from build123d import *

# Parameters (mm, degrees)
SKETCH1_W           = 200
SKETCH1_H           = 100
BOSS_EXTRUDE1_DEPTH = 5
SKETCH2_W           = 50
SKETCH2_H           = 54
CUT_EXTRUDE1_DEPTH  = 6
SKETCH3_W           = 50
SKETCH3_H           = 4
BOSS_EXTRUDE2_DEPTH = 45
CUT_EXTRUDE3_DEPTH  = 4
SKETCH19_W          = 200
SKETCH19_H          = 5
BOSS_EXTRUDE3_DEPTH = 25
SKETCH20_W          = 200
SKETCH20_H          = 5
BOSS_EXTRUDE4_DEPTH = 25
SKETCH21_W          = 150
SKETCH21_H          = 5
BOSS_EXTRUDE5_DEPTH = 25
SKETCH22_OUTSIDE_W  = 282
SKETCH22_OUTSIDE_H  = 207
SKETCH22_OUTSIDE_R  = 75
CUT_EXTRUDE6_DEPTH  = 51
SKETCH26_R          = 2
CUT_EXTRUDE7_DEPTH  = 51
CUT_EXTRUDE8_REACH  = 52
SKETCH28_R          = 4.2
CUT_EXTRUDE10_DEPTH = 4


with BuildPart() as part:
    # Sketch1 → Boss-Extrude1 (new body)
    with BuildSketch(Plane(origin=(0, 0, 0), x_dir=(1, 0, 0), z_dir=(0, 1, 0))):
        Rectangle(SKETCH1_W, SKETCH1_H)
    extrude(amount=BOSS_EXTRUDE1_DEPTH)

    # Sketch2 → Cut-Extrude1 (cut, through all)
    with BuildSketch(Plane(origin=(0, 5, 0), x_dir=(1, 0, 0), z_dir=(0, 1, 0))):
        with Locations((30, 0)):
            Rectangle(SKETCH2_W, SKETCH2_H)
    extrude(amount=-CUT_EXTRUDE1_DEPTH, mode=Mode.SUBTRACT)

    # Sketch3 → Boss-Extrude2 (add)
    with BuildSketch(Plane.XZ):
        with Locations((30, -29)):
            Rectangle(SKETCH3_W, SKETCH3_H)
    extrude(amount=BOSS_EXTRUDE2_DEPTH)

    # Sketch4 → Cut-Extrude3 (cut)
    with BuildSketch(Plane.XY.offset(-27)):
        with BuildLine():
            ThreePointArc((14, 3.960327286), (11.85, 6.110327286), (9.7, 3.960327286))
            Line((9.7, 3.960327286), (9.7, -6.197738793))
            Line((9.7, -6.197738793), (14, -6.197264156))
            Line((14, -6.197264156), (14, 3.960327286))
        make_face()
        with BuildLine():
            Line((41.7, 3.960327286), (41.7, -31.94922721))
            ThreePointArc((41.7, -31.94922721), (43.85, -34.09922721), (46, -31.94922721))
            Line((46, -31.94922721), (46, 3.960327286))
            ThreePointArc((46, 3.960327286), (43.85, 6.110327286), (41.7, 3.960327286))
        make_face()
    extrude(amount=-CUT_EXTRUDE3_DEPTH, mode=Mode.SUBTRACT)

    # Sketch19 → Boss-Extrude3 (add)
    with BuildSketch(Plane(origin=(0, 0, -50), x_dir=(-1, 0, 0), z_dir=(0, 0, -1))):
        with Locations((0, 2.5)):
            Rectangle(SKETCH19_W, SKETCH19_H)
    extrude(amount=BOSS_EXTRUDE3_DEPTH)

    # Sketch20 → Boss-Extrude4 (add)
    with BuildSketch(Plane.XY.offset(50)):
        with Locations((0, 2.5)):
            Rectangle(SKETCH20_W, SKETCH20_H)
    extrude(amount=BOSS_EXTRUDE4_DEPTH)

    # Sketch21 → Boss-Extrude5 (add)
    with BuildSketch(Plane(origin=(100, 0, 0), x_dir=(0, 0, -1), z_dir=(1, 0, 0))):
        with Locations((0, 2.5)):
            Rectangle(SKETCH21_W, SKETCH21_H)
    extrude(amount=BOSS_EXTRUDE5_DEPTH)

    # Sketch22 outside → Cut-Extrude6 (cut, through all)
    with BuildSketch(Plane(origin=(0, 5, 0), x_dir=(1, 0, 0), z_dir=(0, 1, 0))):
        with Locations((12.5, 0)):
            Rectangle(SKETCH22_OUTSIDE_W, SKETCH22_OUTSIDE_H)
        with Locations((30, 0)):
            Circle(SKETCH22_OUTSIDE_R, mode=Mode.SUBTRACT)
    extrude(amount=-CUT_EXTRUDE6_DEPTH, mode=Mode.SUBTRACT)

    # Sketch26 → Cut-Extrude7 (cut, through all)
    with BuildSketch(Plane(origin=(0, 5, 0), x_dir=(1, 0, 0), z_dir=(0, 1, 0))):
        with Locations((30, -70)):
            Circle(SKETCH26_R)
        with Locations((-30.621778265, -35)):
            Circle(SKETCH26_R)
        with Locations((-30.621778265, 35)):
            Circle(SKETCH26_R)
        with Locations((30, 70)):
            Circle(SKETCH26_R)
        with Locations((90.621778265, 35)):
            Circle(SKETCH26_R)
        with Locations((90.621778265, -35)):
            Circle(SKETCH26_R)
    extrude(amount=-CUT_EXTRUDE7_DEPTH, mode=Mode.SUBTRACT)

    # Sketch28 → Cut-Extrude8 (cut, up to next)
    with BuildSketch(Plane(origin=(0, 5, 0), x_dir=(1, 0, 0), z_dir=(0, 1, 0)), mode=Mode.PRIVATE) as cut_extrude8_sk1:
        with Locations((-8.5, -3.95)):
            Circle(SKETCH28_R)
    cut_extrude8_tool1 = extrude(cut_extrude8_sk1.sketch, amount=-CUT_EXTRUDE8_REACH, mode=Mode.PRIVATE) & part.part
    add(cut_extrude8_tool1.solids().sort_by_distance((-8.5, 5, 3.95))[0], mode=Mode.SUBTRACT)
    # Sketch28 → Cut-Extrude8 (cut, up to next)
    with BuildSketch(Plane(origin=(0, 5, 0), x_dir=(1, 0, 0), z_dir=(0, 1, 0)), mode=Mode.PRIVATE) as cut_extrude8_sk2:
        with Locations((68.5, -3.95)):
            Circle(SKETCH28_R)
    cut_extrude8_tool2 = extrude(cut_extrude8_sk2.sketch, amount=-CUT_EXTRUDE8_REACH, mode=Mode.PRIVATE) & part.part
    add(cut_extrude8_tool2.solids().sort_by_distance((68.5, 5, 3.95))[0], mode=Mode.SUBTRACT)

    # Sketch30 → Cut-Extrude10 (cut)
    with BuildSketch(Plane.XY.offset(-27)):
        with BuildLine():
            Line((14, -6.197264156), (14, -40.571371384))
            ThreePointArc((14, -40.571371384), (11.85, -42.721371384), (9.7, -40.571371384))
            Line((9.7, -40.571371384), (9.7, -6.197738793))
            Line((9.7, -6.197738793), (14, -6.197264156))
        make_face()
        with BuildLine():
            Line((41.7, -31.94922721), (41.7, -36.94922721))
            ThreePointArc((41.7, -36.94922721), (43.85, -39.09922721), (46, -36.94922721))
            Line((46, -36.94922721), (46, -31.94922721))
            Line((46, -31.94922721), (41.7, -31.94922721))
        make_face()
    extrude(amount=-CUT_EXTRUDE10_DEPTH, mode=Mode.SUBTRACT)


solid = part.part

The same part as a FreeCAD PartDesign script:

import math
import FreeCAD as App
import Part
import Sketcher
Q = App.Units.Quantity

doc = App.newDocument("Part")
body = doc.addObject("PartDesign::Body", "Body")

sketch1 = doc.addObject("Sketcher::SketchObject", "Sketch")
body.addObject(sketch1)
sketch1.AttachmentSupport = (doc.XZ_Plane, [""])
sketch1.MapMode = "FlatFace"
sketch1.addGeometry(Part.LineSegment(App.Vector(-100, -50, 0), App.Vector(-100, 50, 0)), False)
sketch1.addGeometry(Part.LineSegment(App.Vector(-100, 50, 0), App.Vector(100, 50, 0)), False)
sketch1.addGeometry(Part.LineSegment(App.Vector(100, 50, 0), App.Vector(100, -50, 0)), False)
sketch1.addGeometry(Part.LineSegment(App.Vector(100, -50, 0), App.Vector(-100, -50, 0)), False)
sketch1.addConstraint(Sketcher.Constraint("Coincident", 0, 2, 1, 1))
sketch1.addConstraint(Sketcher.Constraint("Coincident", 1, 2, 2, 1))
sketch1.addConstraint(Sketcher.Constraint("Coincident", 2, 2, 3, 1))
sketch1.addConstraint(Sketcher.Constraint("Coincident", 3, 2, 0, 1))
sketch1.addConstraint(Sketcher.Constraint("Vertical", 0))
sketch1.addConstraint(Sketcher.Constraint("Horizontal", 1))
sketch1.addConstraint(Sketcher.Constraint("Vertical", 2))
sketch1.addConstraint(Sketcher.Constraint("Horizontal", 3))
sketch1.addConstraint(Sketcher.Constraint("Symmetric", 0, 2, 2, 2, -1, 1))
sketch1.addConstraint(Sketcher.Constraint("DistanceX", 1, 1, 1, 2, Q("200 mm")))
sketch1.addConstraint(Sketcher.Constraint("DistanceY", 0, 1, 0, 2, Q("100 mm")))
pad1 = doc.addObject("PartDesign::Pad", "Pad")
body.addObject(pad1)
pad1.Profile = sketch1
pad1.Length = 5
pad1.Reversed = True

sketch2 = doc.addObject("Sketcher::SketchObject", "Sketch001")
body.addObject(sketch2)
sketch2.AttachmentSupport = (doc.XZ_Plane, [""])
sketch2.MapMode = "FlatFace"
sketch2.AttachmentOffset = App.Placement(App.Vector(0, 0, -5), App.Rotation())
sketch2.addGeometry(Part.LineSegment(App.Vector(5, -27, 0), App.Vector(5, 27, 0)), False)
sketch2.addGeometry(Part.LineSegment(App.Vector(5, 27, 0), App.Vector(55, 27, 0)), False)
sketch2.addGeometry(Part.LineSegment(App.Vector(55, 27, 0), App.Vector(55, -27, 0)), False)
sketch2.addGeometry(Part.LineSegment(App.Vector(55, -27, 0), App.Vector(5, -27, 0)), False)
sketch2.addConstraint(Sketcher.Constraint("Coincident", 0, 2, 1, 1))
sketch2.addConstraint(Sketcher.Constraint("Coincident", 1, 2, 2, 1))
sketch2.addConstraint(Sketcher.Constraint("Coincident", 2, 2, 3, 1))
sketch2.addConstraint(Sketcher.Constraint("Coincident", 3, 2, 0, 1))
sketch2.addConstraint(Sketcher.Constraint("Vertical", 0))
sketch2.addConstraint(Sketcher.Constraint("Horizontal", 1))
sketch2.addConstraint(Sketcher.Constraint("Vertical", 2))
sketch2.addConstraint(Sketcher.Constraint("Horizontal", 3))
sketch2.addConstraint(Sketcher.Constraint("DistanceX", 1, 1, 1, 2, Q("50 mm")))
sketch2.addConstraint(Sketcher.Constraint("DistanceY", 0, 1, 0, 2, Q("54 mm")))
sketch2.addConstraint(Sketcher.Constraint("DistanceX", -1, 1, 0, 2, Q("5 mm")))
sketch2.addConstraint(Sketcher.Constraint("DistanceY", -1, 1, 0, 2, Q("27 mm")))
pocket1 = doc.addObject("PartDesign::Pocket", "Pocket")
body.addObject(pocket1)
pocket1.Profile = sketch2
pocket1.Type = "ThroughAll"
pocket1.Reversed = True

sketch3 = doc.addObject("Sketcher::SketchObject", "Sketch002")
body.addObject(sketch3)
sketch3.AttachmentSupport = (doc.XZ_Plane, [""])
sketch3.MapMode = "FlatFace"
sketch3.addGeometry(Part.LineSegment(App.Vector(5, -27, 0), App.Vector(5, -31, 0)), False)
sketch3.addGeometry(Part.LineSegment(App.Vector(5, -31, 0), App.Vector(55, -31, 0)), False)
sketch3.addGeometry(Part.LineSegment(App.Vector(55, -31, 0), App.Vector(55, -27, 0)), False)
sketch3.addGeometry(Part.LineSegment(App.Vector(55, -27, 0), App.Vector(5, -27, 0)), False)
sketch3.addConstraint(Sketcher.Constraint("Coincident", 0, 2, 1, 1))
sketch3.addConstraint(Sketcher.Constraint("Coincident", 1, 2, 2, 1))
sketch3.addConstraint(Sketcher.Constraint("Coincident", 2, 2, 3, 1))
sketch3.addConstraint(Sketcher.Constraint("Coincident", 3, 2, 0, 1))
sketch3.addConstraint(Sketcher.Constraint("Vertical", 0))
sketch3.addConstraint(Sketcher.Constraint("Horizontal", 1))
sketch3.addConstraint(Sketcher.Constraint("Vertical", 2))
sketch3.addConstraint(Sketcher.Constraint("Horizontal", 3))
sketch3.addConstraint(Sketcher.Constraint("DistanceX", 1, 1, 1, 2, Q("50 mm")))
sketch3.addConstraint(Sketcher.Constraint("DistanceY", 0, 2, 0, 1, Q("4 mm")))
sketch3.addConstraint(Sketcher.Constraint("DistanceX", -1, 1, 0, 2, Q("5 mm")))
sketch3.addConstraint(Sketcher.Constraint("DistanceY", 0, 2, -1, 1, Q("31 mm")))
pad2 = doc.addObject("PartDesign::Pad", "Pad001")
body.addObject(pad2)
pad2.Profile = sketch3
pad2.Length = 45

sketch4 = doc.addObject("Sketcher::SketchObject", "Sketch003")
body.addObject(sketch4)
sketch4.AttachmentSupport = (doc.XY_Plane, [""])
sketch4.MapMode = "FlatFace"
sketch4.AttachmentOffset = App.Placement(App.Vector(0, 0, -27), App.Rotation())
sketch4.addGeometry(Part.ArcOfCircle(Part.Circle(App.Vector(11.85, 3.960327, 0), App.Vector(0, 0, 1), 2.15), math.radians(0), math.radians(180)), False)
sketch4.addGeometry(Part.LineSegment(App.Vector(9.7, 3.960327, 0), App.Vector(9.7, -6.197739, 0)), False)
sketch4.addGeometry(Part.LineSegment(App.Vector(9.7, -6.197739, 0), App.Vector(14, -6.197264, 0)), False)
sketch4.addGeometry(Part.LineSegment(App.Vector(14, -6.197264, 0), App.Vector(14, 3.960327, 0)), False)
sketch4.addGeometry(Part.LineSegment(App.Vector(41.7, 3.960327, 0), App.Vector(41.7, -31.949227, 0)), False)
sketch4.addGeometry(Part.ArcOfCircle(Part.Circle(App.Vector(43.85, -31.949227, 0), App.Vector(0, 0, 1), 2.15), math.radians(180), math.radians(360)), False)
sketch4.addGeometry(Part.LineSegment(App.Vector(46, -31.949227, 0), App.Vector(46, 3.960327, 0)), False)
sketch4.addGeometry(Part.ArcOfCircle(Part.Circle(App.Vector(43.85, 3.960327, 0), App.Vector(0, 0, 1), 2.15), math.radians(0), math.radians(180)), False)
sketch4.addConstraint(Sketcher.Constraint("Tangent", 0, 2, 1, 1))
sketch4.addConstraint(Sketcher.Constraint("Coincident", 1, 2, 2, 1))
sketch4.addConstraint(Sketcher.Constraint("Coincident", 2, 2, 3, 1))
sketch4.addConstraint(Sketcher.Constraint("Tangent", 3, 2, 0, 1))
sketch4.addConstraint(Sketcher.Constraint("Tangent", 4, 2, 5, 1))
sketch4.addConstraint(Sketcher.Constraint("Tangent", 5, 2, 6, 1))
sketch4.addConstraint(Sketcher.Constraint("Tangent", 6, 2, 7, 1))
sketch4.addConstraint(Sketcher.Constraint("Tangent", 7, 2, 4, 1))
sketch4.addConstraint(Sketcher.Constraint("Vertical", 1))
sketch4.addConstraint(Sketcher.Constraint("Vertical", 3))
sketch4.addConstraint(Sketcher.Constraint("Vertical", 4))
sketch4.addConstraint(Sketcher.Constraint("Vertical", 6))
sketch4.addConstraint(Sketcher.Constraint("Equal", 0, 5))
sketch4.addConstraint(Sketcher.Constraint("Horizontal", 0, 3, 7, 3))
sketch4.addConstraint(Sketcher.Constraint("Radius", 0, Q("2.15 mm")))
sketch4.addConstraint(Sketcher.Constraint("DistanceX", -1, 1, 2, 2, Q("14 mm")))
sketch4.addConstraint(Sketcher.Constraint("DistanceX", -1, 1, 5, 2, Q("46 mm")))
sketch4.addConstraint(Sketcher.Constraint("DistanceY", 3, 1, 3, 2, Q("10.157591 mm")))
sketch4.addConstraint(Sketcher.Constraint("DistanceY", 1, 2, 1, 1, Q("10.158066 mm")))
sketch4.addConstraint(Sketcher.Constraint("DistanceY", 4, 2, 4, 1, Q("35.909554 mm")))
sketch4.addConstraint(Sketcher.Constraint("DistanceY", 1, 2, -1, 1, Q("6.197739 mm")))
pocket2 = doc.addObject("PartDesign::Pocket", "Pocket001")
body.addObject(pocket2)
pocket2.Profile = sketch4
pocket2.Length = 4

sketch5 = doc.addObject("Sketcher::SketchObject", "Sketch004")
body.addObject(sketch5)
sketch5.AttachmentSupport = (doc.XY_Plane, [""])
sketch5.MapMode = "FlatFace"
sketch5.AttachmentOffset = App.Placement(App.Vector(0, 0, -50), App.Rotation())
sketch5.addGeometry(Part.LineSegment(App.Vector(100, 5, 0), App.Vector(100, 0, 0)), False)
sketch5.addGeometry(Part.LineSegment(App.Vector(100, 0, 0), App.Vector(-100, 0, 0)), False)
sketch5.addGeometry(Part.LineSegment(App.Vector(-100, 0, 0), App.Vector(-100, 5, 0)), False)
sketch5.addGeometry(Part.LineSegment(App.Vector(-100, 5, 0), App.Vector(100, 5, 0)), False)
sketch5.addConstraint(Sketcher.Constraint("Coincident", 0, 2, 1, 1))
sketch5.addConstraint(Sketcher.Constraint("Coincident", 1, 2, 2, 1))
sketch5.addConstraint(Sketcher.Constraint("Coincident", 2, 2, 3, 1))
sketch5.addConstraint(Sketcher.Constraint("Coincident", 3, 2, 0, 1))
sketch5.addConstraint(Sketcher.Constraint("Vertical", 0))
sketch5.addConstraint(Sketcher.Constraint("Horizontal", 1))
sketch5.addConstraint(Sketcher.Constraint("Vertical", 2))
sketch5.addConstraint(Sketcher.Constraint("Horizontal", 3))
sketch5.addConstraint(Sketcher.Constraint("Symmetric", 0, 2, 1, 2, -1, 1))
sketch5.addConstraint(Sketcher.Constraint("DistanceX", 1, 2, 1, 1, Q("200 mm")))
sketch5.addConstraint(Sketcher.Constraint("DistanceY", 0, 2, 0, 1, Q("5 mm")))
pad3 = doc.addObject("PartDesign::Pad", "Pad002")
body.addObject(pad3)
pad3.Profile = sketch5
pad3.Length = 25
pad3.Reversed = True

sketch6 = doc.addObject("Sketcher::SketchObject", "Sketch005")
body.addObject(sketch6)
sketch6.AttachmentSupport = (doc.XY_Plane, [""])
sketch6.MapMode = "FlatFace"
sketch6.AttachmentOffset = App.Placement(App.Vector(0, 0, 50), App.Rotation())
sketch6.addGeometry(Part.LineSegment(App.Vector(-100, 5, 0), App.Vector(-100, 0, 0)), False)
sketch6.addGeometry(Part.LineSegment(App.Vector(-100, 0, 0), App.Vector(100, 0, 0)), False)
sketch6.addGeometry(Part.LineSegment(App.Vector(100, 0, 0), App.Vector(100, 5, 0)), False)
sketch6.addGeometry(Part.LineSegment(App.Vector(100, 5, 0), App.Vector(-100, 5, 0)), False)
sketch6.addConstraint(Sketcher.Constraint("Coincident", 0, 2, 1, 1))
sketch6.addConstraint(Sketcher.Constraint("Coincident", 1, 2, 2, 1))
sketch6.addConstraint(Sketcher.Constraint("Coincident", 2, 2, 3, 1))
sketch6.addConstraint(Sketcher.Constraint("Coincident", 3, 2, 0, 1))
sketch6.addConstraint(Sketcher.Constraint("Vertical", 0))
sketch6.addConstraint(Sketcher.Constraint("Horizontal", 1))
sketch6.addConstraint(Sketcher.Constraint("Vertical", 2))
sketch6.addConstraint(Sketcher.Constraint("Horizontal", 3))
sketch6.addConstraint(Sketcher.Constraint("Symmetric", 0, 2, 1, 2, -1, 1))
sketch6.addConstraint(Sketcher.Constraint("DistanceX", 1, 1, 1, 2, Q("200 mm")))
sketch6.addConstraint(Sketcher.Constraint("DistanceY", 0, 2, 0, 1, Q("5 mm")))
pad4 = doc.addObject("PartDesign::Pad", "Pad003")
body.addObject(pad4)
pad4.Profile = sketch6
pad4.Length = 25

sketch7 = doc.addObject("Sketcher::SketchObject", "Sketch006")
body.addObject(sketch7)
sketch7.AttachmentSupport = (doc.YZ_Plane, [""])
sketch7.MapMode = "FlatFace"
sketch7.AttachmentOffset = App.Placement(App.Vector(0, 0, 100), App.Rotation())
sketch7.addGeometry(Part.LineSegment(App.Vector(5, 75, 0), App.Vector(0, 75, 0)), False)
sketch7.addGeometry(Part.LineSegment(App.Vector(0, 75, 0), App.Vector(0, -75, 0)), False)
sketch7.addGeometry(Part.LineSegment(App.Vector(0, -75, 0), App.Vector(5, -75, 0)), False)
sketch7.addGeometry(Part.LineSegment(App.Vector(5, -75, 0), App.Vector(5, 75, 0)), False)
sketch7.addConstraint(Sketcher.Constraint("Coincident", 0, 2, 1, 1))
sketch7.addConstraint(Sketcher.Constraint("Coincident", 1, 2, 2, 1))
sketch7.addConstraint(Sketcher.Constraint("Coincident", 2, 2, 3, 1))
sketch7.addConstraint(Sketcher.Constraint("Coincident", 3, 2, 0, 1))
sketch7.addConstraint(Sketcher.Constraint("Horizontal", 0))
sketch7.addConstraint(Sketcher.Constraint("Vertical", 1))
sketch7.addConstraint(Sketcher.Constraint("Horizontal", 2))
sketch7.addConstraint(Sketcher.Constraint("Vertical", 3))
sketch7.addConstraint(Sketcher.Constraint("Symmetric", 0, 2, 1, 2, -1, 1))
sketch7.addConstraint(Sketcher.Constraint("DistanceX", 0, 2, 0, 1, Q("5 mm")))
sketch7.addConstraint(Sketcher.Constraint("DistanceY", 1, 2, 1, 1, Q("150 mm")))
pad5 = doc.addObject("PartDesign::Pad", "Pad004")
body.addObject(pad5)
pad5.Profile = sketch7
pad5.Length = 25

sketch8 = doc.addObject("Sketcher::SketchObject", "Sketch007")
body.addObject(sketch8)
sketch8.AttachmentSupport = (doc.XZ_Plane, [""])
sketch8.MapMode = "FlatFace"
sketch8.AttachmentOffset = App.Placement(App.Vector(0, 0, -5), App.Rotation())
sketch8.addGeometry(Part.LineSegment(App.Vector(-128.5, -103.5, 0), App.Vector(-128.5, 103.5, 0)), False)
sketch8.addGeometry(Part.LineSegment(App.Vector(-128.5, 103.5, 0), App.Vector(153.5, 103.5, 0)), False)
sketch8.addGeometry(Part.LineSegment(App.Vector(153.5, 103.5, 0), App.Vector(153.5, -103.5, 0)), False)
sketch8.addGeometry(Part.LineSegment(App.Vector(153.5, -103.5, 0), App.Vector(-128.5, -103.5, 0)), False)
sketch8.addGeometry(Part.Circle(App.Vector(30, 0, 0), App.Vector(0, 0, 1), 75), False)
sketch8.addConstraint(Sketcher.Constraint("Coincident", 0, 2, 1, 1))
sketch8.addConstraint(Sketcher.Constraint("Coincident", 1, 2, 2, 1))
sketch8.addConstraint(Sketcher.Constraint("Coincident", 2, 2, 3, 1))
sketch8.addConstraint(Sketcher.Constraint("Coincident", 3, 2, 0, 1))
sketch8.addConstraint(Sketcher.Constraint("Vertical", 0))
sketch8.addConstraint(Sketcher.Constraint("Horizontal", 1))
sketch8.addConstraint(Sketcher.Constraint("Vertical", 2))
sketch8.addConstraint(Sketcher.Constraint("Horizontal", 3))
sketch8.addConstraint(Sketcher.Constraint("PointOnObject", 4, 3, -1))
sketch8.addConstraint(Sketcher.Constraint("Diameter", 4, Q("150 mm")))
sketch8.addConstraint(Sketcher.Constraint("DistanceX", 1, 1, 1, 2, Q("282 mm")))
sketch8.addConstraint(Sketcher.Constraint("DistanceY", 0, 1, 0, 2, Q("207 mm")))
sketch8.addConstraint(Sketcher.Constraint("DistanceX", -1, 1, 4, 3, Q("30 mm")))
sketch8.addConstraint(Sketcher.Constraint("DistanceX", 0, 2, -1, 1, Q("128.5 mm")))
sketch8.addConstraint(Sketcher.Constraint("DistanceY", -1, 1, 0, 2, Q("103.5 mm")))
pocket3 = doc.addObject("PartDesign::Pocket", "Pocket002")
body.addObject(pocket3)
pocket3.Profile = sketch8
pocket3.Type = "ThroughAll"
pocket3.Reversed = True

sketch9 = doc.addObject("Sketcher::SketchObject", "Sketch008")
body.addObject(sketch9)
sketch9.AttachmentSupport = (doc.XZ_Plane, [""])
sketch9.MapMode = "FlatFace"
sketch9.AttachmentOffset = App.Placement(App.Vector(0, 0, -5), App.Rotation())
sketch9.addGeometry(Part.Circle(App.Vector(30, 70, 0), App.Vector(0, 0, 1), 2), False)
sketch9.addGeometry(Part.Circle(App.Vector(-30.621778, 35, 0), App.Vector(0, 0, 1), 2), False)
sketch9.addGeometry(Part.Circle(App.Vector(-30.621778, -35, 0), App.Vector(0, 0, 1), 2), False)
sketch9.addGeometry(Part.Circle(App.Vector(30, -70, 0), App.Vector(0, 0, 1), 2), False)
sketch9.addGeometry(Part.Circle(App.Vector(90.621778, -35, 0), App.Vector(0, 0, 1), 2), False)
sketch9.addGeometry(Part.Circle(App.Vector(90.621778, 35, 0), App.Vector(0, 0, 1), 2), False)
sketch9.addConstraint(Sketcher.Constraint("Equal", 0, 1))
sketch9.addConstraint(Sketcher.Constraint("Equal", 1, 2))
sketch9.addConstraint(Sketcher.Constraint("Equal", 2, 3))
sketch9.addConstraint(Sketcher.Constraint("Equal", 3, 4))
sketch9.addConstraint(Sketcher.Constraint("Equal", 4, 5))
sketch9.addConstraint(Sketcher.Constraint("Symmetric", 1, 3, 2, 3, -1))
sketch9.addConstraint(Sketcher.Constraint("Symmetric", 0, 3, 3, 3, -1))
sketch9.addConstraint(Sketcher.Constraint("Symmetric", 4, 3, 5, 3, -1))
sketch9.addConstraint(Sketcher.Constraint("Horizontal", 2, 3, 4, 3))
sketch9.addConstraint(Sketcher.Constraint("Diameter", 0, Q("4 mm")))
sketch9.addConstraint(Sketcher.Constraint("DistanceX", -1, 1, 0, 3, Q("30 mm")))
sketch9.addConstraint(Sketcher.Constraint("DistanceY", -1, 1, 0, 3, Q("70 mm")))
sketch9.addConstraint(Sketcher.Constraint("DistanceY", -1, 1, 1, 3, Q("35 mm")))
sketch9.addConstraint(Sketcher.Constraint("DistanceX", 1, 3, -1, 1, Q("30.621778 mm")))
sketch9.addConstraint(Sketcher.Constraint("DistanceX", -1, 1, 4, 3, Q("90.621778 mm")))
pocket4 = doc.addObject("PartDesign::Pocket", "Pocket003")
body.addObject(pocket4)
pocket4.Profile = sketch9
pocket4.Type = "ThroughAll"
pocket4.Reversed = True

sketch10 = doc.addObject("Sketcher::SketchObject", "Sketch009")
body.addObject(sketch10)
sketch10.AttachmentSupport = (doc.XZ_Plane, [""])
sketch10.MapMode = "FlatFace"
sketch10.AttachmentOffset = App.Placement(App.Vector(0, 0, -5), App.Rotation())
sketch10.addGeometry(Part.Circle(App.Vector(-8.5, 3.95, 0), App.Vector(0, 0, 1), 4.2), False)
sketch10.addConstraint(Sketcher.Constraint("Diameter", 0, Q("8.4 mm")))
sketch10.addConstraint(Sketcher.Constraint("DistanceX", 0, 3, -1, 1, Q("8.5 mm")))
sketch10.addConstraint(Sketcher.Constraint("DistanceY", -1, 1, 0, 3, Q("3.95 mm")))
pocket5 = doc.addObject("PartDesign::Pocket", "Pocket004")
body.addObject(pocket5)
pocket5.Profile = sketch10
pocket5.Type = "UpToFirst"
pocket5.Reversed = True

sketch11 = doc.addObject("Sketcher::SketchObject", "Sketch010")
body.addObject(sketch11)
sketch11.AttachmentSupport = (doc.XZ_Plane, [""])
sketch11.MapMode = "FlatFace"
sketch11.AttachmentOffset = App.Placement(App.Vector(0, 0, -5), App.Rotation())
sketch11.addGeometry(Part.Circle(App.Vector(68.5, 3.95, 0), App.Vector(0, 0, 1), 4.2), False)
sketch11.addConstraint(Sketcher.Constraint("Diameter", 0, Q("8.4 mm")))
sketch11.addConstraint(Sketcher.Constraint("DistanceX", -1, 1, 0, 3, Q("68.5 mm")))
sketch11.addConstraint(Sketcher.Constraint("DistanceY", -1, 1, 0, 3, Q("3.95 mm")))
pocket6 = doc.addObject("PartDesign::Pocket", "Pocket005")
body.addObject(pocket6)
pocket6.Profile = sketch11
pocket6.Type = "UpToFirst"
pocket6.Reversed = True

sketch12 = doc.addObject("Sketcher::SketchObject", "Sketch011")
body.addObject(sketch12)
sketch12.AttachmentSupport = (doc.XY_Plane, [""])
sketch12.MapMode = "FlatFace"
sketch12.AttachmentOffset = App.Placement(App.Vector(0, 0, -27), App.Rotation())
sketch12.addGeometry(Part.LineSegment(App.Vector(14, -40.571371, 0), App.Vector(14, -6.197264, 0)), False)
sketch12.addGeometry(Part.LineSegment(App.Vector(14, -6.197264, 0), App.Vector(9.7, -6.197739, 0)), False)
sketch12.addGeometry(Part.LineSegment(App.Vector(9.7, -6.197739, 0), App.Vector(9.7, -40.571371, 0)), False)
sketch12.addGeometry(Part.ArcOfCircle(Part.Circle(App.Vector(11.85, -40.571371, 0), App.Vector(0, 0, 1), 2.15), math.radians(180), math.radians(360)), False)
sketch12.addGeometry(Part.LineSegment(App.Vector(41.7, -31.949227, 0), App.Vector(41.7, -36.949227, 0)), False)
sketch12.addGeometry(Part.ArcOfCircle(Part.Circle(App.Vector(43.85, -36.949227, 0), App.Vector(0, 0, 1), 2.15), math.radians(180), math.radians(360)), False)
sketch12.addGeometry(Part.LineSegment(App.Vector(46, -36.949227, 0), App.Vector(46, -31.949227, 0)), False)
sketch12.addGeometry(Part.LineSegment(App.Vector(46, -31.949227, 0), App.Vector(41.7, -31.949227, 0)), False)
sketch12.addConstraint(Sketcher.Constraint("Coincident", 0, 2, 1, 1))
sketch12.addConstraint(Sketcher.Constraint("Coincident", 1, 2, 2, 1))
sketch12.addConstraint(Sketcher.Constraint("Tangent", 2, 2, 3, 1))
sketch12.addConstraint(Sketcher.Constraint("Tangent", 3, 2, 0, 1))
sketch12.addConstraint(Sketcher.Constraint("Tangent", 4, 2, 5, 1))
sketch12.addConstraint(Sketcher.Constraint("Tangent", 5, 2, 6, 1))
sketch12.addConstraint(Sketcher.Constraint("Coincident", 6, 2, 7, 1))
sketch12.addConstraint(Sketcher.Constraint("Coincident", 7, 2, 4, 1))
sketch12.addConstraint(Sketcher.Constraint("Vertical", 0))
sketch12.addConstraint(Sketcher.Constraint("Vertical", 2))
sketch12.addConstraint(Sketcher.Constraint("Vertical", 4))
sketch12.addConstraint(Sketcher.Constraint("Vertical", 6))
sketch12.addConstraint(Sketcher.Constraint("Horizontal", 7))
sketch12.addConstraint(Sketcher.Constraint("Equal", 3, 5))
sketch12.addConstraint(Sketcher.Constraint("DistanceY", 4, 2, 4, 1, Q("5 mm")))
sketch12.addConstraint(Sketcher.Constraint("Radius", 3, Q("2.15 mm")))
sketch12.addConstraint(Sketcher.Constraint("DistanceX", -1, 1, 0, 2, Q("14 mm")))
sketch12.addConstraint(Sketcher.Constraint("DistanceX", -1, 1, 5, 2, Q("46 mm")))
sketch12.addConstraint(Sketcher.Constraint("DistanceY", 0, 1, 0, 2, Q("34.374107 mm")))
sketch12.addConstraint(Sketcher.Constraint("DistanceY", 2, 2, 2, 1, Q("34.373633 mm")))
sketch12.addConstraint(Sketcher.Constraint("DistanceY", 3, 3, -1, 1, Q("40.571371 mm")))
sketch12.addConstraint(Sketcher.Constraint("DistanceY", 5, 3, 1, 2, Q("30.751488 mm")))
pocket7 = doc.addObject("PartDesign::Pocket", "Pocket006")
body.addObject(pocket7)
pocket7.Profile = sketch12
pocket7.Length = 4

doc.recompute()
